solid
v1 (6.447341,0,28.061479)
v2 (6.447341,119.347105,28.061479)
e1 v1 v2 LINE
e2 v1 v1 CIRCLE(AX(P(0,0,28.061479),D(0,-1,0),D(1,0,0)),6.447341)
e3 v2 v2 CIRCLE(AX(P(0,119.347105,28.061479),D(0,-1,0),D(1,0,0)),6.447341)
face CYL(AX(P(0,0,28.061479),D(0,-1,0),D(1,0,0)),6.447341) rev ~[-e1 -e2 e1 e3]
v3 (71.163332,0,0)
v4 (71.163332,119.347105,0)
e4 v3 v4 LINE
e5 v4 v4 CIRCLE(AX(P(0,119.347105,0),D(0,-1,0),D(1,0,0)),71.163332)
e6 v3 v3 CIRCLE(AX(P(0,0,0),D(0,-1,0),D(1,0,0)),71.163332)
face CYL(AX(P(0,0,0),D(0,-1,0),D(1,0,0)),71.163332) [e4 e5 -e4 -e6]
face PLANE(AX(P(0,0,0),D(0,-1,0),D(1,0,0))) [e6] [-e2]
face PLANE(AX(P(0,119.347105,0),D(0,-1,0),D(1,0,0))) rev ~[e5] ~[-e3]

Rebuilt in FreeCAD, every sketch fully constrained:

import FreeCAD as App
import Part
import Sketcher

doc = App.newDocument("Part")
params = doc.addObject("Spreadsheet::Sheet", "Params")
for row, (alias, value) in enumerate([
    ("pad1_length", "119.347105 mm"),
    ("pocket1_length", "173.737081 mm"),
], start=1):
    params.set(f"A{row}", alias)
    params.set(f"B{row}", "=" + value)
    params.setAlias(f"B{row}", alias)

body = doc.addObject("PartDesign::Body", "Body")

# Sketch on XZ plane
sketch1 = body.newObject("Sketcher::SketchObject", "Sketch")
sketch1.AttachmentSupport = (doc.getObject("XZ_Plane"), [""])
sketch1.MapMode = "FlatFace"
sketch1.addGeometry(Part.Circle(App.Vector(0, 0, 0), App.Vector(0, 0, 1), 71), False)
sketch1.addConstraint(Sketcher.Constraint("Coincident", 0, 3, -1, 1))
sketch1.addConstraint(Sketcher.Constraint("Diameter", 0, 142.326664))
pad1 = body.newObject("PartDesign::Pad", "Pad")
pad1.Profile = sketch1
pad1.setExpression("Length", "Params.pad1_length")
pad1.Reversed = True

# Sketch on XZ plane
sketch2 = body.newObject("Sketcher::SketchObject", "Sketch001")
sketch2.AttachmentSupport = (doc.getObject("XZ_Plane"), [""])
sketch2.MapMode = "FlatFace"
sketch2.addGeometry(Part.Circle(App.Vector(0, 28, 0), App.Vector(0, 0, 1), 6), False)
sketch2.addConstraint(Sketcher.Constraint("PointOnObject", 0, 3, -2))
sketch2.addConstraint(Sketcher.Constraint("Diameter", 0, 12.894682))
sketch2.addConstraint(Sketcher.Constraint("DistanceY", -1, 1, 0, 3, 28.061479))
pocket1 = body.newObject("PartDesign::Pocket", "Pocket")
pocket1.Profile = sketch2
pocket1.setExpression("Length", "Params.pocket1_length")

doc.recompute()
